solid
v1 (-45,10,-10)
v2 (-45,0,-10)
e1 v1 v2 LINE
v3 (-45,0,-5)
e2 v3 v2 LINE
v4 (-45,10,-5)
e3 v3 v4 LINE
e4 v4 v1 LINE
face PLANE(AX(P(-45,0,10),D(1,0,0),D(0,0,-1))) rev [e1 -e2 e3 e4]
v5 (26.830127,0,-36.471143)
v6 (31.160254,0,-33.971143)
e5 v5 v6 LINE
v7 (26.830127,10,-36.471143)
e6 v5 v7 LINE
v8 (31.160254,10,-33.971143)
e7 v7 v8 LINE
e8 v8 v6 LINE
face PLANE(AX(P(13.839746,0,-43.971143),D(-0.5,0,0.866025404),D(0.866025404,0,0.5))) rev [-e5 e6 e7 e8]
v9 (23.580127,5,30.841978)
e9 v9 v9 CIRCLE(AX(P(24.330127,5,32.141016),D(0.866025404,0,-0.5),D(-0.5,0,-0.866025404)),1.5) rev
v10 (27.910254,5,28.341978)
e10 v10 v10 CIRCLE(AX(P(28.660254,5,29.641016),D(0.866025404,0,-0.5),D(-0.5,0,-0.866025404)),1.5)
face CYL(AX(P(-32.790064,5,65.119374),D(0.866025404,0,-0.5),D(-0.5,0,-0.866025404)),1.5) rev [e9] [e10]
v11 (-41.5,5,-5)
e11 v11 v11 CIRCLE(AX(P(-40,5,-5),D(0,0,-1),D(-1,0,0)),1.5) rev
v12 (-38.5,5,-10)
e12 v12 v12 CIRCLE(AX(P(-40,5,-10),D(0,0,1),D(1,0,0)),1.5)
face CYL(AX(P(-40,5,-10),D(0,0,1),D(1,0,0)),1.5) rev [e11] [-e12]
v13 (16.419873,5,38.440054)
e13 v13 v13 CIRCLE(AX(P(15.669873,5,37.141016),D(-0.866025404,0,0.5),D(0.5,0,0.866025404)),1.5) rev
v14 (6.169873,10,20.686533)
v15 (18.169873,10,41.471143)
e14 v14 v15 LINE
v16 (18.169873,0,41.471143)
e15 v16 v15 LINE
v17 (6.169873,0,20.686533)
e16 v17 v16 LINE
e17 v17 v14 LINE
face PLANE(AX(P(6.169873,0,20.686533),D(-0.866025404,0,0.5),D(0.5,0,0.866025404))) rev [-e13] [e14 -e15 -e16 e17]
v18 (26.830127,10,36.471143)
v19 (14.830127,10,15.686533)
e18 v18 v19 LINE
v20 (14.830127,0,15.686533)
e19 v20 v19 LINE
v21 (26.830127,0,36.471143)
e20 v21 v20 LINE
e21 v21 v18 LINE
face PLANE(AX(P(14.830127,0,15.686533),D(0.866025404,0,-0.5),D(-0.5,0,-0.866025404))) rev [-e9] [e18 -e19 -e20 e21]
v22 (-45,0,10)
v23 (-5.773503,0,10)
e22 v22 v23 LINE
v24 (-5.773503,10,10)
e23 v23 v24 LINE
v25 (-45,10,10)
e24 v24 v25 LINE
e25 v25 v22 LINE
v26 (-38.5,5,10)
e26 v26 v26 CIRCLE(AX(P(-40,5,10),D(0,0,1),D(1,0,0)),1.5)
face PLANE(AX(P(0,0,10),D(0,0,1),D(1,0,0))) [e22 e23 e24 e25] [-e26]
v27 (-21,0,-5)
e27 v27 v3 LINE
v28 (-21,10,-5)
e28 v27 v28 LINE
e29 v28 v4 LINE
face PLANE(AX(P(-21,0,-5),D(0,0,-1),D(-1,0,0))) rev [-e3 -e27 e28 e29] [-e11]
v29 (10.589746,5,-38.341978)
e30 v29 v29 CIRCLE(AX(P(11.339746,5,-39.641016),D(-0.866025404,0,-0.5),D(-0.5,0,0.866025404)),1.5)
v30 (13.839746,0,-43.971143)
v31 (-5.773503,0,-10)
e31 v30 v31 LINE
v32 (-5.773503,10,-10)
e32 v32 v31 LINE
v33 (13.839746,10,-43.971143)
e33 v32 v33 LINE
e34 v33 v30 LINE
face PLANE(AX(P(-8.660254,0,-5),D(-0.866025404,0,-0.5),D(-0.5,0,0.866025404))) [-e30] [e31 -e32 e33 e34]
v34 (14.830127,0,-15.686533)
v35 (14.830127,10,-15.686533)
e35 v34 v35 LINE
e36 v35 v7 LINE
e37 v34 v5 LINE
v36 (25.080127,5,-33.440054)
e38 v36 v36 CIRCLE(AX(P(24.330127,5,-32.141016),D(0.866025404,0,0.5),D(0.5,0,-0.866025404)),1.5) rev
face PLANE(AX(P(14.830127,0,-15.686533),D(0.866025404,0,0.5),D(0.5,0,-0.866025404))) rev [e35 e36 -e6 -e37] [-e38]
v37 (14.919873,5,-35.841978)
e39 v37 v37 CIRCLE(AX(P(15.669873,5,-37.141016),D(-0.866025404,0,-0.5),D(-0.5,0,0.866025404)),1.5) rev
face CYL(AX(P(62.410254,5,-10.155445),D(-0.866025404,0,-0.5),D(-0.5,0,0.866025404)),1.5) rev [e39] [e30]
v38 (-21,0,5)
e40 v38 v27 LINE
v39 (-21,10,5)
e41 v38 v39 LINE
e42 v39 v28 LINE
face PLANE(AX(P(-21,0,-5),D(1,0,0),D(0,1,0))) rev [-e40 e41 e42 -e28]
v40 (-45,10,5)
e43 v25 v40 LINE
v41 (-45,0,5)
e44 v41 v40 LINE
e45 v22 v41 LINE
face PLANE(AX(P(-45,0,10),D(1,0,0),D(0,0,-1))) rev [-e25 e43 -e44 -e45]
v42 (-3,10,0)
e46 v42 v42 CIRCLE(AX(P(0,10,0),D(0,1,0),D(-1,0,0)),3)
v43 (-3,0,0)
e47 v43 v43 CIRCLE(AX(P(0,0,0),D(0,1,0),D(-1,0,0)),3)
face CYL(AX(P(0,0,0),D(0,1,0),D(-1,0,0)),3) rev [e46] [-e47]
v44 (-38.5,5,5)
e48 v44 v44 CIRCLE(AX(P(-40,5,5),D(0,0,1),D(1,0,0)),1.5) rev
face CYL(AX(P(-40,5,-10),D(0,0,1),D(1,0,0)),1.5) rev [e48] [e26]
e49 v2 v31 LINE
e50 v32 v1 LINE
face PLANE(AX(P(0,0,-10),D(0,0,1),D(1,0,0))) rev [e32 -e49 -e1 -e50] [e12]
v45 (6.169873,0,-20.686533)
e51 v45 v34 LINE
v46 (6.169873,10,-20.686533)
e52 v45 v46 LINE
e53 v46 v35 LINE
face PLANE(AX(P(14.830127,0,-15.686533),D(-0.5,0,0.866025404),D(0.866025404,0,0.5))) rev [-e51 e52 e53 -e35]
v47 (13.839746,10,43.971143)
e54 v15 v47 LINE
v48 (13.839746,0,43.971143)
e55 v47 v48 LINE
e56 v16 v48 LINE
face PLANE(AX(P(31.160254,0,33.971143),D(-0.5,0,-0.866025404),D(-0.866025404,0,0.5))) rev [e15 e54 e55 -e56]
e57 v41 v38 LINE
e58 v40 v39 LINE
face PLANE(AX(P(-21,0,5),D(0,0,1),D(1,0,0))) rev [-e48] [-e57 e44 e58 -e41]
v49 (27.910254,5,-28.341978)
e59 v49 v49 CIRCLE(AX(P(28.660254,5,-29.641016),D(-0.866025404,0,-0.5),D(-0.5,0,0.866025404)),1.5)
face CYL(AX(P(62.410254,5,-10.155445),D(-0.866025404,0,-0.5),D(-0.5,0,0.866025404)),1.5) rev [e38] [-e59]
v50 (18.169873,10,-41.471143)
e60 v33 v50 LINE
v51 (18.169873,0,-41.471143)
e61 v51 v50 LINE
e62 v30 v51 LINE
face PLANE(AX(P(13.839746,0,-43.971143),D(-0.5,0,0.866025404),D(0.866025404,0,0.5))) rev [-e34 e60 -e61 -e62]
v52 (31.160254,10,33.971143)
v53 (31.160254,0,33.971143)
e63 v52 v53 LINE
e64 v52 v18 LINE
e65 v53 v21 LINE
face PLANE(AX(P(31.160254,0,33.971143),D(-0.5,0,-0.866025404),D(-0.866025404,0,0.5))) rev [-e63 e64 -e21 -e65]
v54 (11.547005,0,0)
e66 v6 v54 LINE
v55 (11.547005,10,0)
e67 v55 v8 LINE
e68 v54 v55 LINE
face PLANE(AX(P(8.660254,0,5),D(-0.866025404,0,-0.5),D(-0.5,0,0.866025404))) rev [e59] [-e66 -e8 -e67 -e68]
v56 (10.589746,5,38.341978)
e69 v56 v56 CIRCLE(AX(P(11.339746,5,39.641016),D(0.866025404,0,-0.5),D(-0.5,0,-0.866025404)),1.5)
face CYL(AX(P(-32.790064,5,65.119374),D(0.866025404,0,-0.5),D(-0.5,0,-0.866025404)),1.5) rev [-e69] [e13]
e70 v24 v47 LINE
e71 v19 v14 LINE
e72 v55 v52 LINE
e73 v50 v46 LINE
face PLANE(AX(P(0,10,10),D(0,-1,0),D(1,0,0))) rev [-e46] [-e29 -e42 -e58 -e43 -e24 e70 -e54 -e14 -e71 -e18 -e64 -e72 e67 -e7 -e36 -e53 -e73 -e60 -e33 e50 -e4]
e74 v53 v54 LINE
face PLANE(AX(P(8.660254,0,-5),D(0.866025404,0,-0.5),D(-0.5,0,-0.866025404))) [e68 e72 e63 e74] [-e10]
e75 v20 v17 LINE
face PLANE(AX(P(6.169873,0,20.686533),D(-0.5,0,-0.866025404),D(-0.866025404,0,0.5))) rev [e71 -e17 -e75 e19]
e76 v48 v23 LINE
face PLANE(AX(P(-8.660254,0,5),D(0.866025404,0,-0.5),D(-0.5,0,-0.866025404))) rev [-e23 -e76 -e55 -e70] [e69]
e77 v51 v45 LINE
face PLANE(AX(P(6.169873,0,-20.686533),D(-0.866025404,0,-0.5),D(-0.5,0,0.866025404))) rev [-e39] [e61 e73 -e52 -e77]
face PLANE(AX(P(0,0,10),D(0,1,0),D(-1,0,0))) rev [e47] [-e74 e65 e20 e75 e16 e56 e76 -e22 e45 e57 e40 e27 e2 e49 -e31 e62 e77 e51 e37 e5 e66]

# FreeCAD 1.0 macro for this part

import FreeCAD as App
import Part
import Sketcher
from FreeCAD import Vector
Q = App.Units.Quantity

doc = App.newDocument("Part")
params = doc.addObject("Spreadsheet::Sheet", "Params")
for row, (alias, value) in enumerate([
    ("sketch1_width", "45 mm"),
    ("sketch1_height", "10 mm"),
    ("pad1_length", "20 mm"),
    ("sketch2_diameter", "3 mm"),
    ("pocket1_length", "22 mm"),
    ("sketch3_width", "24 mm"),
    ("sketch3_height", "10 mm"),
    ("sketch4_diameter", "6 mm"),
], start=1):
    params.set(f"A{row}", alias)
    params.set(f"B{row}", "=" + value)
    params.setAlias(f"B{row}", alias)

body = doc.addObject("PartDesign::Body", "Body")

# Sketch on XY plane
sketch1 = body.newObject("Sketcher::SketchObject", "Sketch")
sketch1.AttachmentSupport = (doc.getObject("XY_Plane"), [""])
sketch1.MapMode = "FlatFace"
sketch1.addGeometry([
    Part.LineSegment(Vector(-45, 10, 0), Vector(-45, 0, 0)),
    Part.LineSegment(Vector(-45, 0, 0), Vector(0, 0, 0)),
    Part.LineSegment(Vector(0, 0, 0), Vector(0, 10, 0)),
    Part.LineSegment(Vector(0, 10, 0), Vector(-45, 10, 0)),
], False)
sketch1.addConstraint([
    Sketcher.Constraint("Coincident", 0, 2, 1, 1),
    Sketcher.Constraint("Coincident", 1, 2, 2, 1),
    Sketcher.Constraint("Coincident", 2, 2, 3, 1),
    Sketcher.Constraint("Coincident", 3, 2, 0, 1),
    Sketcher.Constraint("Vertical", 0),
    Sketcher.Constraint("Horizontal", 1),
    Sketcher.Constraint("Vertical", 2),
    Sketcher.Constraint("Horizontal", 3),
    Sketcher.Constraint("Coincident", 1, 2, -1, 1),
    Sketcher.Constraint("DistanceX", 1, 1, 1, 2, Q("45 mm")),
    Sketcher.Constraint("DistanceY", 0, 2, 0, 1, Q("10 mm")),
])
sketch1.setExpression("Constraints[9]", "Params.sketch1_width")
sketch1.setExpression("Constraints[10]", "Params.sketch1_height")
pad1 = body.newObject("PartDesign::Pad", "Pad")
pad1.Profile = sketch1
pad1.setExpression("Length", "Params.pad1_length")
pad1.Midplane = True

# Sketch on XY plane
sketch2 = body.newObject("Sketcher::SketchObject", "Sketch001")
sketch2.AttachmentSupport = (doc.getObject("XY_Plane"), [""])
sketch2.MapMode = "FlatFace"
sketch2.AttachmentOffset = App.Placement(Vector(0, 0, -11), App.Rotation())
sketch2.addGeometry(Part.Circle(Vector(-40, 5, 0), Vector(0, 0, 1), 1.5), False)
sketch2.addConstraint([
    Sketcher.Constraint("Diameter", 0, Q("3 mm")),
    Sketcher.Constraint("DistanceX", 0, 3, -1, 1, Q("40 mm")),
    Sketcher.Constraint("DistanceY", -1, 1, 0, 3, Q("5 mm")),
])
sketch2.setExpression("Constraints[0]", "Params.sketch2_diameter")
pocket1 = body.newObject("PartDesign::Pocket", "Pocket")
pocket1.Profile = sketch2
pocket1.setExpression("Length", "Params.pocket1_length")
pocket1.Reversed = True

# Sketch on XZ plane
sketch3 = body.newObject("Sketcher::SketchObject", "Sketch002")
sketch3.AttachmentSupport = (doc.getObject("XZ_Plane"), [""])
sketch3.MapMode = "FlatFace"
sketch3.AttachmentOffset = App.Placement(Vector(0, 0, -10), App.Rotation())
sketch3.addGeometry([
    Part.LineSegment(Vector(-45, -5, 0), Vector(-45, 5, 0)),
    Part.LineSegment(Vector(-45, 5, 0), Vector(-21, 5, 0)),
    Part.LineSegment(Vector(-21, 5, 0), Vector(-21, -5, 0)),
    Part.LineSegment(Vector(-21, -5, 0), Vector(-45, -5, 0)),
], False)
sketch3.addConstraint([
    Sketcher.Constraint("Coincident", 0, 2, 1, 1),
    Sketcher.Constraint("Coincident", 1, 2, 2, 1),
    Sketcher.Constraint("Coincident", 2, 2, 3, 1),
    Sketcher.Constraint("Coincident", 3, 2, 0, 1),
    Sketcher.Constraint("Vertical", 0),
    Sketcher.Constraint("Horizontal", 1),
    Sketcher.Constraint("Vertical", 2),
    Sketcher.Constraint("Horizontal", 3),
    Sketcher.Constraint("DistanceX", 1, 1, 1, 2, Q("24 mm")),
    Sketcher.Constraint("DistanceY", 0, 1, 0, 2, Q("10 mm")),
    Sketcher.Constraint("DistanceX", 0, 2, -1, 1, Q("45 mm")),
    Sketcher.Constraint("DistanceY", -1, 1, 0, 2, Q("5 mm")),
])
sketch3.setExpression("Constraints[8]", "Params.sketch3_width")
sketch3.setExpression("Constraints[9]", "Params.sketch3_height")
pocket2 = body.newObject("PartDesign::Pocket", "Pocket001")
pocket2.Profile = sketch3
pocket2.Type = "ThroughAll"
pocket2.Reversed = True
doc.recompute()

polarpattern = body.newObject("PartDesign::PolarPattern", "PolarPattern")
polarpattern.Originals = [pad1, pocket1, pocket2]
polarpattern.Axis = (doc.getObject("Y_Axis"), [""])
polarpattern.Angle = 360
polarpattern.Occurrences = 3
body.Tip = polarpattern

# Sketch on XZ plane
sketch4 = body.newObject("Sketcher::SketchObject", "Sketch003")
sketch4.AttachmentSupport = (doc.getObject("XZ_Plane"), [""])
sketch4.MapMode = "FlatFace"
sketch4.AttachmentOffset = App.Placement(Vector(0, 0, -10), App.Rotation())
sketch4.addGeometry(Part.Circle(Vector(0, 0, 0), Vector(0, 0, 1), 3), False)
sketch4.addConstraint([
    Sketcher.Constraint("Coincident", 0, 3, -1, 1),
    Sketcher.Constraint("Diameter", 0, Q("6 mm")),
])
sketch4.setExpression("Constraints[1]", "Params.sketch4_diameter")
pocket3 = body.newObject("PartDesign::Pocket", "Pocket002")
pocket3.Profile = sketch4
pocket3.Type = "ThroughAll"
pocket3.Reversed = True

doc.recompute()
